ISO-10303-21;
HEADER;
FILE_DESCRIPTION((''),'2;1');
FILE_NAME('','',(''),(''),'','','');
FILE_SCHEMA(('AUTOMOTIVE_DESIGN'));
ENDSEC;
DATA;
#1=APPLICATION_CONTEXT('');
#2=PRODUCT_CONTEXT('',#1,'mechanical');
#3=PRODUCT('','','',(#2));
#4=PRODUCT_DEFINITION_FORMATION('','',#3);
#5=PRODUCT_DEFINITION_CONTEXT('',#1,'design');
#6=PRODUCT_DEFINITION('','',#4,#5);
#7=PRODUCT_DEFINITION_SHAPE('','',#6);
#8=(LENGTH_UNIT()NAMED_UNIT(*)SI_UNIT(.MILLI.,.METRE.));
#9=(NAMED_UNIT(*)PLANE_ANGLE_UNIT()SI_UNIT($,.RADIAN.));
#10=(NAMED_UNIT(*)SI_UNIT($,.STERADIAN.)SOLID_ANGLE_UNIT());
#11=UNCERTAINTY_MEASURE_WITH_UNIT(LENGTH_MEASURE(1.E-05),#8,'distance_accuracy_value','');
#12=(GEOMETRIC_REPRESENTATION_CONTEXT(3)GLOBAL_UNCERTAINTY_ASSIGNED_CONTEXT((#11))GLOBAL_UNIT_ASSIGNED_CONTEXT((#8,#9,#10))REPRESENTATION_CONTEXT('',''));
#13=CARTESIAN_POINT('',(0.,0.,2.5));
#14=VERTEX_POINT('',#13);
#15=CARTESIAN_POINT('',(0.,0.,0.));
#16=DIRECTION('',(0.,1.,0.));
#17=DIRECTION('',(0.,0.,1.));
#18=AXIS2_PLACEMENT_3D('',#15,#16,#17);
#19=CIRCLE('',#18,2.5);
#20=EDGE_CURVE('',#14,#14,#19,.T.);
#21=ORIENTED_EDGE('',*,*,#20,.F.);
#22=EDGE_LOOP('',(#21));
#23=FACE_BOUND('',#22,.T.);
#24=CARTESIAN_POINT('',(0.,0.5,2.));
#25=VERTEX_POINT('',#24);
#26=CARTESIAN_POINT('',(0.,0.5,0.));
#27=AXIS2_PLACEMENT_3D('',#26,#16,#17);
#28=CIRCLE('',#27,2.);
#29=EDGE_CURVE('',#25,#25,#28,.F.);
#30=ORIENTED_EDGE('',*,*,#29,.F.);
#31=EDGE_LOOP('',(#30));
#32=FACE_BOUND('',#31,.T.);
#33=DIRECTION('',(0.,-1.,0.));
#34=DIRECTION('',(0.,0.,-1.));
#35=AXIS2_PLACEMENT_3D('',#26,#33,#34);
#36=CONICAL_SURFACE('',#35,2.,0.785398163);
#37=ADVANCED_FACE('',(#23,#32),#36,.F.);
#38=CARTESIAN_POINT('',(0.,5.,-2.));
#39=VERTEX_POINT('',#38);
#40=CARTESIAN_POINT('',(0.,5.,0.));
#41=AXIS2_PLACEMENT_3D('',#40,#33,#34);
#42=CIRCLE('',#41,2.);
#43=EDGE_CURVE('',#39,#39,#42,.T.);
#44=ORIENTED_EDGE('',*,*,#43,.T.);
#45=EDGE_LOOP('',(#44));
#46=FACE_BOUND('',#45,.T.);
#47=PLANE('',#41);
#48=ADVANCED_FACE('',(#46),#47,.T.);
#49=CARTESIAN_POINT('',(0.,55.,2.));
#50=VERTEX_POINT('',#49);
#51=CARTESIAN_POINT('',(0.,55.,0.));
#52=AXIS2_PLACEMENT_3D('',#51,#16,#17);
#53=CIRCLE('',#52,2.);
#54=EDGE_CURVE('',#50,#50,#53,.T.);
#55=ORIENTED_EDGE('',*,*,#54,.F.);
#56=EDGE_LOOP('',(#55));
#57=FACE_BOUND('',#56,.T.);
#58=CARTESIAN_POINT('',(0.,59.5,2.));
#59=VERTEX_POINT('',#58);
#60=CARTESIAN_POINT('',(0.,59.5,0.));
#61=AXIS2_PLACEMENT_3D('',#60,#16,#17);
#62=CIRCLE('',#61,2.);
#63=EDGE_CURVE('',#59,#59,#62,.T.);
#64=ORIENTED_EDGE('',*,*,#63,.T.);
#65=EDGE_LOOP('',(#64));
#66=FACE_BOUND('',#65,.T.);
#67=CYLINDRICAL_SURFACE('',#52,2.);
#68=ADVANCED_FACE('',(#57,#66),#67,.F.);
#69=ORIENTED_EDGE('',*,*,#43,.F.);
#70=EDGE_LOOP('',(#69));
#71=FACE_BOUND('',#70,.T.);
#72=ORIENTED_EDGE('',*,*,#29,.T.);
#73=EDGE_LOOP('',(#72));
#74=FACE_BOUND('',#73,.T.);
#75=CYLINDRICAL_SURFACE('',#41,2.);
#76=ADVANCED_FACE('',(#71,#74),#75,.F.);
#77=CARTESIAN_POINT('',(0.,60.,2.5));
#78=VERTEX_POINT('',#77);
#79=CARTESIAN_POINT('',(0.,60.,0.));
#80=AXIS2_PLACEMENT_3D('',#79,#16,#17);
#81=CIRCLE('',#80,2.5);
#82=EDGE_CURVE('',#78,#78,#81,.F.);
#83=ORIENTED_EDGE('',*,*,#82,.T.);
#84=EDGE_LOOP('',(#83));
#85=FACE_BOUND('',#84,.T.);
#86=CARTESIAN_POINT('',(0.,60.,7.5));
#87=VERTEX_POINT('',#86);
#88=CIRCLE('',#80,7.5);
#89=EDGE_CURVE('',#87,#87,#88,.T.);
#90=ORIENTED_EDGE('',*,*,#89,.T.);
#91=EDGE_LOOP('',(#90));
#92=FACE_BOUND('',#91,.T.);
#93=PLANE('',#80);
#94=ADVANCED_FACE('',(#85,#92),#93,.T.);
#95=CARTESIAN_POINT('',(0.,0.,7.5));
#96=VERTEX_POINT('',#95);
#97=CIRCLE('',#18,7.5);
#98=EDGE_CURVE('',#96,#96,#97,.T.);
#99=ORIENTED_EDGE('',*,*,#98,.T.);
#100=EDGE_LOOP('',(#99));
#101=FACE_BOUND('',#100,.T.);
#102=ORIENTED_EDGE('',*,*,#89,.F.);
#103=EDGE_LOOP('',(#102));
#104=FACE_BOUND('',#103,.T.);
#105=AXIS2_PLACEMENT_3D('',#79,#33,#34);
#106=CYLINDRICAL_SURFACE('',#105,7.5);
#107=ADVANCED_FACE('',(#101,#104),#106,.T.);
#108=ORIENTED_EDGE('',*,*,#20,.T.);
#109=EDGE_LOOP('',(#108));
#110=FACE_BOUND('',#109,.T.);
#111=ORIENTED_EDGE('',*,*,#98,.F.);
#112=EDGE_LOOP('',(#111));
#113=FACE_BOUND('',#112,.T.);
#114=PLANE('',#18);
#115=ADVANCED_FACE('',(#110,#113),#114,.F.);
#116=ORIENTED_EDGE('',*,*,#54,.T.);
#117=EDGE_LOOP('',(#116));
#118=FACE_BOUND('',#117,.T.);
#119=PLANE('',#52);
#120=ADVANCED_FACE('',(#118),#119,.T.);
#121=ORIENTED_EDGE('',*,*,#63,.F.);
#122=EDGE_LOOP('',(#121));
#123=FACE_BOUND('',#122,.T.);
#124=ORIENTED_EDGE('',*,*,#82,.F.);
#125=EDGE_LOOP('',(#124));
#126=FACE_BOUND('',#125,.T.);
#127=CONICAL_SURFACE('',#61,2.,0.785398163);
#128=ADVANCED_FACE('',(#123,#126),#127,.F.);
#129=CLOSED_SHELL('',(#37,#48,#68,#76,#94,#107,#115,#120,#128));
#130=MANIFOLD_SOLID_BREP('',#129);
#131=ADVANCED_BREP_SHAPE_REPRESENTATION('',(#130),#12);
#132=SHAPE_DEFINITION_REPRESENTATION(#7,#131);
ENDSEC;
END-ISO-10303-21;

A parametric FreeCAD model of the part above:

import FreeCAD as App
import Part
import Sketcher

V = App.Vector
Q = App.Units.Quantity


def edges_at(feature, points):
    """Names of the edges that pass closest to the given points."""
    edges = feature.Shape.Edges
    near = lambda p: min(range(len(edges)), key=lambda i: edges[i].distToShape(Part.Vertex(*p))[0])
    return sorted({f"Edge{near(p) + 1}" for p in points})

doc = App.newDocument("Part")
params = doc.addObject("Spreadsheet::Sheet", "Params")
for row, (alias, value) in enumerate([
    ("sketch1_diameter", "15 mm"),
    ("pad1_length", "60 mm"),
    ("sketch2_diameter", "4 mm"),
    ("pocket1_length", "5 mm"),
    ("chamfer_size", "0.5 mm"),
    ("sketch3_diameter", "4 mm"),
    ("pocket2_length", "5 mm"),
    ("chamfer2_size", "0.5 mm"),
], start=1):
    params.set(f"A{row}", alias)
    params.set(f"B{row}", "=" + value)
    params.setAlias(f"B{row}", alias)

body = doc.addObject("PartDesign::Body", "Body")

# Sketch on XZ plane
sketch1 = body.newObject("Sketcher::SketchObject", "Sketch")
sketch1.AttachmentSupport = (doc.getObject("XZ_Plane"), [""])
sketch1.MapMode = "FlatFace"
sketch1.addGeometry(Part.Circle(V(0, 0, 0), V(0, 0, 1), 8), False)
sketch1.addConstraint([
    Sketcher.Constraint("Coincident", 0, 3, -1, 1),
    Sketcher.Constraint("Diameter", 0, Q("15 mm")),
])
sketch1.setExpression("Constraints[1]", "Params.sketch1_diameter")
pad1 = body.newObject("PartDesign::Pad", "Pad")
pad1.Profile = sketch1
pad1.setExpression("Length", "Params.pad1_length")
pad1.Reversed = True

# Sketch on XZ plane
sketch2 = body.newObject("Sketcher::SketchObject", "Sketch001")
sketch2.AttachmentSupport = (doc.getObject("XZ_Plane"), [""])
sketch2.MapMode = "FlatFace"
sketch2.AttachmentOffset = App.Placement(V(0, 0, -60), App.Rotation())
sketch2.addGeometry(Part.Circle(V(0, 0, 0), V(0, 0, 1), 2), False)
sketch2.addConstraint([
    Sketcher.Constraint("Coincident", 0, 3, -1, 1),
    Sketcher.Constraint("Diameter", 0, Q("4 mm")),
])
sketch2.setExpression("Constraints[1]", "Params.sketch2_diameter")
pocket1 = body.newObject("PartDesign::Pocket", "Pocket")
pocket1.Profile = sketch2
pocket1.setExpression("Length", "Params.pocket1_length")
pocket1.Reversed = True
doc.recompute()

chamfer = body.newObject("PartDesign::Chamfer", "Chamfer")
chamfer.Base = (pocket1, edges_at(pocket1, [(0, 60, -2)]))
chamfer.setExpression("Size", "Params.chamfer_size")

# Sketch on XZ plane
sketch3 = body.newObject("Sketcher::SketchObject", "Sketch002")
sketch3.AttachmentSupport = (doc.getObject("XZ_Plane"), [""])
sketch3.MapMode = "FlatFace"
sketch3.AttachmentOffset = App.Placement(V(0, 0, -5), App.Rotation())
sketch3.addGeometry(Part.Circle(V(0, 0, 0), V(0, 0, 1), 2), False)
sketch3.addConstraint([
    Sketcher.Constraint("Coincident", 0, 3, -1, 1),
    Sketcher.Constraint("Diameter", 0, Q("4 mm")),
])
sketch3.setExpression("Constraints[1]", "Params.sketch3_diameter")
pocket2 = body.newObject("PartDesign::Pocket", "Pocket001")
pocket2.Profile = sketch3
pocket2.setExpression("Length", "Params.pocket2_length")
pocket2.Reversed = True
doc.recompute()

chamfer2 = body.newObject("PartDesign::Chamfer", "Chamfer001")
chamfer2.Base = (pocket2, edges_at(pocket2, [(0, 0, -2)]))
chamfer2.setExpression("Size", "Params.chamfer2_size")

doc.recompute()
